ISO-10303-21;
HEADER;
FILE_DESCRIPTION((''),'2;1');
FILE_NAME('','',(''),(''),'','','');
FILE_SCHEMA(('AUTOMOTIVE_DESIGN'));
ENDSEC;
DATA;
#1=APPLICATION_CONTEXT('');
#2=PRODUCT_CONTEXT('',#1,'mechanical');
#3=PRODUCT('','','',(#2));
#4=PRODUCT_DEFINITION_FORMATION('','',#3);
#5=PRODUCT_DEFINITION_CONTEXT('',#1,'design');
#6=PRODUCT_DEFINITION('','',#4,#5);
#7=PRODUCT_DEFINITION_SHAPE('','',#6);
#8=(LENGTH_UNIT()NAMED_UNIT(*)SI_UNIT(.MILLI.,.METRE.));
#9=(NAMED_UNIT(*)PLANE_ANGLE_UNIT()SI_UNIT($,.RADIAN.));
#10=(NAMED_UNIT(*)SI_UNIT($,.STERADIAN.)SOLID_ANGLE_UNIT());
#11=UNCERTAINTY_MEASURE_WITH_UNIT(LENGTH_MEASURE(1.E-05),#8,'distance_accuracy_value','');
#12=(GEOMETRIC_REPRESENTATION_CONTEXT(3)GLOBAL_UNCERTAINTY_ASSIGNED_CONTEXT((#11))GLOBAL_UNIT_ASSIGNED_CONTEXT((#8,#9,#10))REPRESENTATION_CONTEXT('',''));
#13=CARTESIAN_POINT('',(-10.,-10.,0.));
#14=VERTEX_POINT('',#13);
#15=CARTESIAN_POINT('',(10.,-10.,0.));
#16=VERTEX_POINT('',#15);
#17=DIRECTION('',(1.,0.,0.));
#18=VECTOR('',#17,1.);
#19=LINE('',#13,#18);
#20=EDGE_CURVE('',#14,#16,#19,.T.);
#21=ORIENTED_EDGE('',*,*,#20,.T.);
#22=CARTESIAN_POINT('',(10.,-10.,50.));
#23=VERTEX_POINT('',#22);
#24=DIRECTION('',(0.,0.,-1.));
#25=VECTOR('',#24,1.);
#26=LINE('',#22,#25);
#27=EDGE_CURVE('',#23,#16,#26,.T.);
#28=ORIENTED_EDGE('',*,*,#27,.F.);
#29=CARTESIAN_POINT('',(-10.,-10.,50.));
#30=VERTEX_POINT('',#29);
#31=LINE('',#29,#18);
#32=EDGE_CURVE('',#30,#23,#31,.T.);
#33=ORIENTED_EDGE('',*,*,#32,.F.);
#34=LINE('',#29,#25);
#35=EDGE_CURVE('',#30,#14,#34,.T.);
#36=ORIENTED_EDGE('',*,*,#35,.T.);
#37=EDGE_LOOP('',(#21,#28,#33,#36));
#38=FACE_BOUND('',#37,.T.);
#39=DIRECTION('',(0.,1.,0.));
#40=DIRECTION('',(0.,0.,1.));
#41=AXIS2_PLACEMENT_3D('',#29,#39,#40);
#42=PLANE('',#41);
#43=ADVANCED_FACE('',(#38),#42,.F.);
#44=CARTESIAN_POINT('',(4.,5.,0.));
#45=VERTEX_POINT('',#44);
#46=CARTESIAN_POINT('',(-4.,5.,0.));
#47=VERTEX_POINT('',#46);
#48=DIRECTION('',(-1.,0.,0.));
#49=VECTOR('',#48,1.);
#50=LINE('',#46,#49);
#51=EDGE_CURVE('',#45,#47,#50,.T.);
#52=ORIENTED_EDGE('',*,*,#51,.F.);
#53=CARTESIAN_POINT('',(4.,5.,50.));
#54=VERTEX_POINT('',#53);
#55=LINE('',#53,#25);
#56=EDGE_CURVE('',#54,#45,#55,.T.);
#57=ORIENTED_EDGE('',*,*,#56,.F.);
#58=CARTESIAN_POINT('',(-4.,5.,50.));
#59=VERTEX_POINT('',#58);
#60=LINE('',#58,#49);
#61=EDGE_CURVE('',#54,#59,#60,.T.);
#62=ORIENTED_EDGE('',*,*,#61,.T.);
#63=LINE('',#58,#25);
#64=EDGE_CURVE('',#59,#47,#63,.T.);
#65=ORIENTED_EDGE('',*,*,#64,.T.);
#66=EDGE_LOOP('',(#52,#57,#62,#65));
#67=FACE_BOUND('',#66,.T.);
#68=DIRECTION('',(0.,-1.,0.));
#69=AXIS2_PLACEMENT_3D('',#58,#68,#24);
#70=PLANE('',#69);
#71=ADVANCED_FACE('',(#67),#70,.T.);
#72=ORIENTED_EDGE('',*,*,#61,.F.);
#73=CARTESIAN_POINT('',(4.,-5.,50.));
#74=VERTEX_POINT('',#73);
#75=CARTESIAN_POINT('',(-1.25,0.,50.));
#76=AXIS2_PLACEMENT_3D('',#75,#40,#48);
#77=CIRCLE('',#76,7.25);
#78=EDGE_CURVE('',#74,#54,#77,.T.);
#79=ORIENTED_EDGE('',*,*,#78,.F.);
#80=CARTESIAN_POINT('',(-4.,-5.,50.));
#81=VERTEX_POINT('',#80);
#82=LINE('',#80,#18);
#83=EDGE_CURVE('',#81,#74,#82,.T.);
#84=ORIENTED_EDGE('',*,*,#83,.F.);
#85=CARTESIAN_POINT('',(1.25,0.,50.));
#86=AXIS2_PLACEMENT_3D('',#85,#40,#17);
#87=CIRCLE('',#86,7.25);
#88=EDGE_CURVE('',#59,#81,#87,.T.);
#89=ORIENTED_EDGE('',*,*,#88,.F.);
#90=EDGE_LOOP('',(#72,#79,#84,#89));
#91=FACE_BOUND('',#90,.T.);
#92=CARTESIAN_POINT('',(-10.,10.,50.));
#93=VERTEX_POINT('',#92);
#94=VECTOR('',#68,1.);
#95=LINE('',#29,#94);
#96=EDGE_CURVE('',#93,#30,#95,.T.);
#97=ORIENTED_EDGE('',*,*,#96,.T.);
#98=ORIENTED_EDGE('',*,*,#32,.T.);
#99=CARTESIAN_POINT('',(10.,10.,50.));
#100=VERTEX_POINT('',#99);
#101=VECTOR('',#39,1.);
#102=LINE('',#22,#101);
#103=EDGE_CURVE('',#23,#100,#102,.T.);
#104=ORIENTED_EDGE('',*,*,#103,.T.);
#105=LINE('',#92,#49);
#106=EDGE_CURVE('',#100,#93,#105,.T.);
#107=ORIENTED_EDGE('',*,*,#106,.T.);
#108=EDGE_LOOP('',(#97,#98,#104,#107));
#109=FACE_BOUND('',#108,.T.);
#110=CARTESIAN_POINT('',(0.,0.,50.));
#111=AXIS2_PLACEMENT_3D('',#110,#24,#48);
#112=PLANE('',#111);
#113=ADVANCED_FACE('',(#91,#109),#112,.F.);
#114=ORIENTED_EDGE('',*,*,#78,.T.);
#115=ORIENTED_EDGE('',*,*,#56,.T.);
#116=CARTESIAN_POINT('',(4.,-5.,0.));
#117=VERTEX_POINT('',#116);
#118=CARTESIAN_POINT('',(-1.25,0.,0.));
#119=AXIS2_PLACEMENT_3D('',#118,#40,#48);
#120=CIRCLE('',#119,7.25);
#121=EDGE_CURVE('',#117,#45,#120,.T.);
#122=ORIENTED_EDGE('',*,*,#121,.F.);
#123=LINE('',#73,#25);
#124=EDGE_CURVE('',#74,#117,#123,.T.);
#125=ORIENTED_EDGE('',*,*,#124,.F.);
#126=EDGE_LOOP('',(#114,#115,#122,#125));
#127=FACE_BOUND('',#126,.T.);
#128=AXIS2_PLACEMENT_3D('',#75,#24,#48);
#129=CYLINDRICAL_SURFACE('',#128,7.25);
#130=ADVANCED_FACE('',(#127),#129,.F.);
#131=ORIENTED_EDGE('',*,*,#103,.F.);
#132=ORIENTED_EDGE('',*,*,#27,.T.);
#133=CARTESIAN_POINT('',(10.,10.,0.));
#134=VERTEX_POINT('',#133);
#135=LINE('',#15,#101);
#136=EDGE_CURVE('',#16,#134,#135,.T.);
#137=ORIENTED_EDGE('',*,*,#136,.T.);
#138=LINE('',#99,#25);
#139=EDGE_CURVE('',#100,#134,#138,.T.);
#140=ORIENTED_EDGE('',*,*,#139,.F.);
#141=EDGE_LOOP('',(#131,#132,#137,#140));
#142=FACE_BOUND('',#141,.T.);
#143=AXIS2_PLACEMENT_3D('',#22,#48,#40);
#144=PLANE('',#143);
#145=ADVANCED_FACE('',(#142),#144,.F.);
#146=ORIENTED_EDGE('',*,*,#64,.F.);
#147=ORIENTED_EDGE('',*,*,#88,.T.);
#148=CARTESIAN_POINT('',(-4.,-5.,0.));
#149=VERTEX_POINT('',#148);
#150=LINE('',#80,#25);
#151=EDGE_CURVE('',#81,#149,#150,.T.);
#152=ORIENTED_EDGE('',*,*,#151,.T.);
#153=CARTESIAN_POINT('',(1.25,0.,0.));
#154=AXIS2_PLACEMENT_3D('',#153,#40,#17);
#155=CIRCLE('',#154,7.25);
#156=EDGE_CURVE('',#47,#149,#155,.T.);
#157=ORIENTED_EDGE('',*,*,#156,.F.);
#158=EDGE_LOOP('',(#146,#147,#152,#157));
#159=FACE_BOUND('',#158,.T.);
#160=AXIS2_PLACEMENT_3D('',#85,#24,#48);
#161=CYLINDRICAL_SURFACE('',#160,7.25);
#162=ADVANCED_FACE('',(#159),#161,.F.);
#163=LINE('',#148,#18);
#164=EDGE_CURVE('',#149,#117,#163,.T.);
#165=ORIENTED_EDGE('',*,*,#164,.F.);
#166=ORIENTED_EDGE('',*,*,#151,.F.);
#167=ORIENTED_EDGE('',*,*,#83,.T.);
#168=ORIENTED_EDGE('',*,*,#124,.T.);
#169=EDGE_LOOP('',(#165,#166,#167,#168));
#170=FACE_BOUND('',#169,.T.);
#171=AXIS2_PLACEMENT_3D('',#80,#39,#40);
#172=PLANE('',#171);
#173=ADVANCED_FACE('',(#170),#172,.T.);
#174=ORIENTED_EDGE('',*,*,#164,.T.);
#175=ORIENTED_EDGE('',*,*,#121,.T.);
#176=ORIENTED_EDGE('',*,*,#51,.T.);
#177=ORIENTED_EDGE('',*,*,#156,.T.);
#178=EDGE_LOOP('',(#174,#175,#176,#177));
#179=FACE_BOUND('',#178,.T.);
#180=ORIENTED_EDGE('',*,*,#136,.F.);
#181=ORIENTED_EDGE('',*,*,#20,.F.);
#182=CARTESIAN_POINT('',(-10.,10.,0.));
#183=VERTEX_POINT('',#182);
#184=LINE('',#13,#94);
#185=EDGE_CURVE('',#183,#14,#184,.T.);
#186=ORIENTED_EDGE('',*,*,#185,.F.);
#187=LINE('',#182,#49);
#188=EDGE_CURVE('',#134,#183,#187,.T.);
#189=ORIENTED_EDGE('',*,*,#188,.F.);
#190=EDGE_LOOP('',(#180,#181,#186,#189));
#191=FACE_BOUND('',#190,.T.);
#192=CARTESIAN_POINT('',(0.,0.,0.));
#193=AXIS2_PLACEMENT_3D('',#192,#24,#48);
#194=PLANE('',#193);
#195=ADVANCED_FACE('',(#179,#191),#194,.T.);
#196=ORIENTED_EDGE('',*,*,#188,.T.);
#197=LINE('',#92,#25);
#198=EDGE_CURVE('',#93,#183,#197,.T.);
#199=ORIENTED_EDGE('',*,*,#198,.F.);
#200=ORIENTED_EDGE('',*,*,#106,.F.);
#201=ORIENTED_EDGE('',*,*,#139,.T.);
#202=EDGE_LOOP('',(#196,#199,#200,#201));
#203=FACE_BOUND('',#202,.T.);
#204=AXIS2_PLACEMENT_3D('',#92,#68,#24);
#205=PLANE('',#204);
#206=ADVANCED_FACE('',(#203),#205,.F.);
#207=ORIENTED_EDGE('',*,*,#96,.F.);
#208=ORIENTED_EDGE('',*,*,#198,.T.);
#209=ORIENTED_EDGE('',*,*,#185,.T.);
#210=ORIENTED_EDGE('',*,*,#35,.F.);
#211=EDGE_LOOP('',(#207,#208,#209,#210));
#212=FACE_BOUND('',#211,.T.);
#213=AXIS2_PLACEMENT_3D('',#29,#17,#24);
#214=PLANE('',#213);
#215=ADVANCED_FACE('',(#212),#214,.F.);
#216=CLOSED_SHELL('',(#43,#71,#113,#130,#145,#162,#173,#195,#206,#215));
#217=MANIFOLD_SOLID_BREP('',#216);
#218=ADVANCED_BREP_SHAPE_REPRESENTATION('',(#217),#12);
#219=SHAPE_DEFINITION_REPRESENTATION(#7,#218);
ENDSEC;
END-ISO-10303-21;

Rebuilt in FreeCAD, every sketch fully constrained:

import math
import FreeCAD as App
import Part
import Sketcher
Q = App.Units.Quantity

doc = App.newDocument("Part")
body = doc.addObject("PartDesign::Body", "Body")

sketch1 = doc.addObject("Sketcher::SketchObject", "Sketch")
body.addObject(sketch1)
sketch1.AttachmentSupport = (doc.XY_Plane, [""])
sketch1.MapMode = "FlatFace"
sketch1.addGeometry([
    Part.LineSegment(App.Vector(-10, 10, 0), App.Vector(-10, -10, 0)),
    Part.LineSegment(App.Vector(-10, -10, 0), App.Vector(10, -10, 0)),
    Part.LineSegment(App.Vector(10, -10, 0), App.Vector(10, 10, 0)),
    Part.LineSegment(App.Vector(10, 10, 0), App.Vector(-10, 10, 0)),
], False)
sketch1.addConstraint([
    Sketcher.Constraint("Coincident", 0, 2, 1, 1),
    Sketcher.Constraint("Coincident", 1, 2, 2, 1),
    Sketcher.Constraint("Coincident", 2, 2, 3, 1),
    Sketcher.Constraint("Coincident", 3, 2, 0, 1),
    Sketcher.Constraint("Vertical", 0),
    Sketcher.Constraint("Horizontal", 1),
    Sketcher.Constraint("Vertical", 2),
    Sketcher.Constraint("Horizontal", 3),
    Sketcher.Constraint("Symmetric", 0, 2, 2, 2, -1, 1),
    Sketcher.Constraint("Equal", 3, 0),
    Sketcher.Constraint("DistanceX", 1, 1, 1, 2, Q("20 mm")),
])
pad1 = doc.addObject("PartDesign::Pad", "Pad")
body.addObject(pad1)
pad1.Profile = sketch1
pad1.Length = 50

sketch2 = doc.addObject("Sketcher::SketchObject", "Sketch001")
body.addObject(sketch2)
sketch2.AttachmentSupport = (doc.XY_Plane, [""])
sketch2.MapMode = "FlatFace"
sketch2.addGeometry([
    Part.LineSegment(App.Vector(4, 5, 0), App.Vector(-4, 5, 0)),
    Part.ArcOfCircle(Part.Circle(App.Vector(1, 0, 0), App.Vector(0, 0, 1), 7), math.radians(136), math.radians(224)),
    Part.LineSegment(App.Vector(-4, -5, 0), App.Vector(4, -5, 0)),
    Part.ArcOfCircle(Part.Circle(App.Vector(-1, 0, 0), App.Vector(0, 0, 1), 7), math.radians(-44), math.radians(44)),
], False)
sketch2.addConstraint([
    Sketcher.Constraint("Coincident", 0, 2, 1, 1),
    Sketcher.Constraint("Coincident", 1, 2, 2, 1),
    Sketcher.Constraint("Coincident", 2, 2, 3, 1),
    Sketcher.Constraint("Coincident", 3, 2, 0, 1),
    Sketcher.Constraint("Horizontal", 0),
    Sketcher.Constraint("Horizontal", 2),
    Sketcher.Constraint("Equal", 1, 3),
    Sketcher.Constraint("Symmetric", 1, 3, 3, 3, -1, 1),
    Sketcher.Constraint("Symmetric", 0, 2, 1, 2, -1),
    Sketcher.Constraint("DistanceX", 0, 2, 0, 1, Q("8 mm")),
    Sketcher.Constraint("Radius", 1, Q("7.25 mm")),
    Sketcher.Constraint("DistanceY", -1, 1, 0, 2, Q("5 mm")),
])
pocket1 = doc.addObject("PartDesign::Pocket", "Pocket")
body.addObject(pocket1)
pocket1.Profile = sketch2
pocket1.Length = 50
pocket1.Reversed = True

doc.recompute()
